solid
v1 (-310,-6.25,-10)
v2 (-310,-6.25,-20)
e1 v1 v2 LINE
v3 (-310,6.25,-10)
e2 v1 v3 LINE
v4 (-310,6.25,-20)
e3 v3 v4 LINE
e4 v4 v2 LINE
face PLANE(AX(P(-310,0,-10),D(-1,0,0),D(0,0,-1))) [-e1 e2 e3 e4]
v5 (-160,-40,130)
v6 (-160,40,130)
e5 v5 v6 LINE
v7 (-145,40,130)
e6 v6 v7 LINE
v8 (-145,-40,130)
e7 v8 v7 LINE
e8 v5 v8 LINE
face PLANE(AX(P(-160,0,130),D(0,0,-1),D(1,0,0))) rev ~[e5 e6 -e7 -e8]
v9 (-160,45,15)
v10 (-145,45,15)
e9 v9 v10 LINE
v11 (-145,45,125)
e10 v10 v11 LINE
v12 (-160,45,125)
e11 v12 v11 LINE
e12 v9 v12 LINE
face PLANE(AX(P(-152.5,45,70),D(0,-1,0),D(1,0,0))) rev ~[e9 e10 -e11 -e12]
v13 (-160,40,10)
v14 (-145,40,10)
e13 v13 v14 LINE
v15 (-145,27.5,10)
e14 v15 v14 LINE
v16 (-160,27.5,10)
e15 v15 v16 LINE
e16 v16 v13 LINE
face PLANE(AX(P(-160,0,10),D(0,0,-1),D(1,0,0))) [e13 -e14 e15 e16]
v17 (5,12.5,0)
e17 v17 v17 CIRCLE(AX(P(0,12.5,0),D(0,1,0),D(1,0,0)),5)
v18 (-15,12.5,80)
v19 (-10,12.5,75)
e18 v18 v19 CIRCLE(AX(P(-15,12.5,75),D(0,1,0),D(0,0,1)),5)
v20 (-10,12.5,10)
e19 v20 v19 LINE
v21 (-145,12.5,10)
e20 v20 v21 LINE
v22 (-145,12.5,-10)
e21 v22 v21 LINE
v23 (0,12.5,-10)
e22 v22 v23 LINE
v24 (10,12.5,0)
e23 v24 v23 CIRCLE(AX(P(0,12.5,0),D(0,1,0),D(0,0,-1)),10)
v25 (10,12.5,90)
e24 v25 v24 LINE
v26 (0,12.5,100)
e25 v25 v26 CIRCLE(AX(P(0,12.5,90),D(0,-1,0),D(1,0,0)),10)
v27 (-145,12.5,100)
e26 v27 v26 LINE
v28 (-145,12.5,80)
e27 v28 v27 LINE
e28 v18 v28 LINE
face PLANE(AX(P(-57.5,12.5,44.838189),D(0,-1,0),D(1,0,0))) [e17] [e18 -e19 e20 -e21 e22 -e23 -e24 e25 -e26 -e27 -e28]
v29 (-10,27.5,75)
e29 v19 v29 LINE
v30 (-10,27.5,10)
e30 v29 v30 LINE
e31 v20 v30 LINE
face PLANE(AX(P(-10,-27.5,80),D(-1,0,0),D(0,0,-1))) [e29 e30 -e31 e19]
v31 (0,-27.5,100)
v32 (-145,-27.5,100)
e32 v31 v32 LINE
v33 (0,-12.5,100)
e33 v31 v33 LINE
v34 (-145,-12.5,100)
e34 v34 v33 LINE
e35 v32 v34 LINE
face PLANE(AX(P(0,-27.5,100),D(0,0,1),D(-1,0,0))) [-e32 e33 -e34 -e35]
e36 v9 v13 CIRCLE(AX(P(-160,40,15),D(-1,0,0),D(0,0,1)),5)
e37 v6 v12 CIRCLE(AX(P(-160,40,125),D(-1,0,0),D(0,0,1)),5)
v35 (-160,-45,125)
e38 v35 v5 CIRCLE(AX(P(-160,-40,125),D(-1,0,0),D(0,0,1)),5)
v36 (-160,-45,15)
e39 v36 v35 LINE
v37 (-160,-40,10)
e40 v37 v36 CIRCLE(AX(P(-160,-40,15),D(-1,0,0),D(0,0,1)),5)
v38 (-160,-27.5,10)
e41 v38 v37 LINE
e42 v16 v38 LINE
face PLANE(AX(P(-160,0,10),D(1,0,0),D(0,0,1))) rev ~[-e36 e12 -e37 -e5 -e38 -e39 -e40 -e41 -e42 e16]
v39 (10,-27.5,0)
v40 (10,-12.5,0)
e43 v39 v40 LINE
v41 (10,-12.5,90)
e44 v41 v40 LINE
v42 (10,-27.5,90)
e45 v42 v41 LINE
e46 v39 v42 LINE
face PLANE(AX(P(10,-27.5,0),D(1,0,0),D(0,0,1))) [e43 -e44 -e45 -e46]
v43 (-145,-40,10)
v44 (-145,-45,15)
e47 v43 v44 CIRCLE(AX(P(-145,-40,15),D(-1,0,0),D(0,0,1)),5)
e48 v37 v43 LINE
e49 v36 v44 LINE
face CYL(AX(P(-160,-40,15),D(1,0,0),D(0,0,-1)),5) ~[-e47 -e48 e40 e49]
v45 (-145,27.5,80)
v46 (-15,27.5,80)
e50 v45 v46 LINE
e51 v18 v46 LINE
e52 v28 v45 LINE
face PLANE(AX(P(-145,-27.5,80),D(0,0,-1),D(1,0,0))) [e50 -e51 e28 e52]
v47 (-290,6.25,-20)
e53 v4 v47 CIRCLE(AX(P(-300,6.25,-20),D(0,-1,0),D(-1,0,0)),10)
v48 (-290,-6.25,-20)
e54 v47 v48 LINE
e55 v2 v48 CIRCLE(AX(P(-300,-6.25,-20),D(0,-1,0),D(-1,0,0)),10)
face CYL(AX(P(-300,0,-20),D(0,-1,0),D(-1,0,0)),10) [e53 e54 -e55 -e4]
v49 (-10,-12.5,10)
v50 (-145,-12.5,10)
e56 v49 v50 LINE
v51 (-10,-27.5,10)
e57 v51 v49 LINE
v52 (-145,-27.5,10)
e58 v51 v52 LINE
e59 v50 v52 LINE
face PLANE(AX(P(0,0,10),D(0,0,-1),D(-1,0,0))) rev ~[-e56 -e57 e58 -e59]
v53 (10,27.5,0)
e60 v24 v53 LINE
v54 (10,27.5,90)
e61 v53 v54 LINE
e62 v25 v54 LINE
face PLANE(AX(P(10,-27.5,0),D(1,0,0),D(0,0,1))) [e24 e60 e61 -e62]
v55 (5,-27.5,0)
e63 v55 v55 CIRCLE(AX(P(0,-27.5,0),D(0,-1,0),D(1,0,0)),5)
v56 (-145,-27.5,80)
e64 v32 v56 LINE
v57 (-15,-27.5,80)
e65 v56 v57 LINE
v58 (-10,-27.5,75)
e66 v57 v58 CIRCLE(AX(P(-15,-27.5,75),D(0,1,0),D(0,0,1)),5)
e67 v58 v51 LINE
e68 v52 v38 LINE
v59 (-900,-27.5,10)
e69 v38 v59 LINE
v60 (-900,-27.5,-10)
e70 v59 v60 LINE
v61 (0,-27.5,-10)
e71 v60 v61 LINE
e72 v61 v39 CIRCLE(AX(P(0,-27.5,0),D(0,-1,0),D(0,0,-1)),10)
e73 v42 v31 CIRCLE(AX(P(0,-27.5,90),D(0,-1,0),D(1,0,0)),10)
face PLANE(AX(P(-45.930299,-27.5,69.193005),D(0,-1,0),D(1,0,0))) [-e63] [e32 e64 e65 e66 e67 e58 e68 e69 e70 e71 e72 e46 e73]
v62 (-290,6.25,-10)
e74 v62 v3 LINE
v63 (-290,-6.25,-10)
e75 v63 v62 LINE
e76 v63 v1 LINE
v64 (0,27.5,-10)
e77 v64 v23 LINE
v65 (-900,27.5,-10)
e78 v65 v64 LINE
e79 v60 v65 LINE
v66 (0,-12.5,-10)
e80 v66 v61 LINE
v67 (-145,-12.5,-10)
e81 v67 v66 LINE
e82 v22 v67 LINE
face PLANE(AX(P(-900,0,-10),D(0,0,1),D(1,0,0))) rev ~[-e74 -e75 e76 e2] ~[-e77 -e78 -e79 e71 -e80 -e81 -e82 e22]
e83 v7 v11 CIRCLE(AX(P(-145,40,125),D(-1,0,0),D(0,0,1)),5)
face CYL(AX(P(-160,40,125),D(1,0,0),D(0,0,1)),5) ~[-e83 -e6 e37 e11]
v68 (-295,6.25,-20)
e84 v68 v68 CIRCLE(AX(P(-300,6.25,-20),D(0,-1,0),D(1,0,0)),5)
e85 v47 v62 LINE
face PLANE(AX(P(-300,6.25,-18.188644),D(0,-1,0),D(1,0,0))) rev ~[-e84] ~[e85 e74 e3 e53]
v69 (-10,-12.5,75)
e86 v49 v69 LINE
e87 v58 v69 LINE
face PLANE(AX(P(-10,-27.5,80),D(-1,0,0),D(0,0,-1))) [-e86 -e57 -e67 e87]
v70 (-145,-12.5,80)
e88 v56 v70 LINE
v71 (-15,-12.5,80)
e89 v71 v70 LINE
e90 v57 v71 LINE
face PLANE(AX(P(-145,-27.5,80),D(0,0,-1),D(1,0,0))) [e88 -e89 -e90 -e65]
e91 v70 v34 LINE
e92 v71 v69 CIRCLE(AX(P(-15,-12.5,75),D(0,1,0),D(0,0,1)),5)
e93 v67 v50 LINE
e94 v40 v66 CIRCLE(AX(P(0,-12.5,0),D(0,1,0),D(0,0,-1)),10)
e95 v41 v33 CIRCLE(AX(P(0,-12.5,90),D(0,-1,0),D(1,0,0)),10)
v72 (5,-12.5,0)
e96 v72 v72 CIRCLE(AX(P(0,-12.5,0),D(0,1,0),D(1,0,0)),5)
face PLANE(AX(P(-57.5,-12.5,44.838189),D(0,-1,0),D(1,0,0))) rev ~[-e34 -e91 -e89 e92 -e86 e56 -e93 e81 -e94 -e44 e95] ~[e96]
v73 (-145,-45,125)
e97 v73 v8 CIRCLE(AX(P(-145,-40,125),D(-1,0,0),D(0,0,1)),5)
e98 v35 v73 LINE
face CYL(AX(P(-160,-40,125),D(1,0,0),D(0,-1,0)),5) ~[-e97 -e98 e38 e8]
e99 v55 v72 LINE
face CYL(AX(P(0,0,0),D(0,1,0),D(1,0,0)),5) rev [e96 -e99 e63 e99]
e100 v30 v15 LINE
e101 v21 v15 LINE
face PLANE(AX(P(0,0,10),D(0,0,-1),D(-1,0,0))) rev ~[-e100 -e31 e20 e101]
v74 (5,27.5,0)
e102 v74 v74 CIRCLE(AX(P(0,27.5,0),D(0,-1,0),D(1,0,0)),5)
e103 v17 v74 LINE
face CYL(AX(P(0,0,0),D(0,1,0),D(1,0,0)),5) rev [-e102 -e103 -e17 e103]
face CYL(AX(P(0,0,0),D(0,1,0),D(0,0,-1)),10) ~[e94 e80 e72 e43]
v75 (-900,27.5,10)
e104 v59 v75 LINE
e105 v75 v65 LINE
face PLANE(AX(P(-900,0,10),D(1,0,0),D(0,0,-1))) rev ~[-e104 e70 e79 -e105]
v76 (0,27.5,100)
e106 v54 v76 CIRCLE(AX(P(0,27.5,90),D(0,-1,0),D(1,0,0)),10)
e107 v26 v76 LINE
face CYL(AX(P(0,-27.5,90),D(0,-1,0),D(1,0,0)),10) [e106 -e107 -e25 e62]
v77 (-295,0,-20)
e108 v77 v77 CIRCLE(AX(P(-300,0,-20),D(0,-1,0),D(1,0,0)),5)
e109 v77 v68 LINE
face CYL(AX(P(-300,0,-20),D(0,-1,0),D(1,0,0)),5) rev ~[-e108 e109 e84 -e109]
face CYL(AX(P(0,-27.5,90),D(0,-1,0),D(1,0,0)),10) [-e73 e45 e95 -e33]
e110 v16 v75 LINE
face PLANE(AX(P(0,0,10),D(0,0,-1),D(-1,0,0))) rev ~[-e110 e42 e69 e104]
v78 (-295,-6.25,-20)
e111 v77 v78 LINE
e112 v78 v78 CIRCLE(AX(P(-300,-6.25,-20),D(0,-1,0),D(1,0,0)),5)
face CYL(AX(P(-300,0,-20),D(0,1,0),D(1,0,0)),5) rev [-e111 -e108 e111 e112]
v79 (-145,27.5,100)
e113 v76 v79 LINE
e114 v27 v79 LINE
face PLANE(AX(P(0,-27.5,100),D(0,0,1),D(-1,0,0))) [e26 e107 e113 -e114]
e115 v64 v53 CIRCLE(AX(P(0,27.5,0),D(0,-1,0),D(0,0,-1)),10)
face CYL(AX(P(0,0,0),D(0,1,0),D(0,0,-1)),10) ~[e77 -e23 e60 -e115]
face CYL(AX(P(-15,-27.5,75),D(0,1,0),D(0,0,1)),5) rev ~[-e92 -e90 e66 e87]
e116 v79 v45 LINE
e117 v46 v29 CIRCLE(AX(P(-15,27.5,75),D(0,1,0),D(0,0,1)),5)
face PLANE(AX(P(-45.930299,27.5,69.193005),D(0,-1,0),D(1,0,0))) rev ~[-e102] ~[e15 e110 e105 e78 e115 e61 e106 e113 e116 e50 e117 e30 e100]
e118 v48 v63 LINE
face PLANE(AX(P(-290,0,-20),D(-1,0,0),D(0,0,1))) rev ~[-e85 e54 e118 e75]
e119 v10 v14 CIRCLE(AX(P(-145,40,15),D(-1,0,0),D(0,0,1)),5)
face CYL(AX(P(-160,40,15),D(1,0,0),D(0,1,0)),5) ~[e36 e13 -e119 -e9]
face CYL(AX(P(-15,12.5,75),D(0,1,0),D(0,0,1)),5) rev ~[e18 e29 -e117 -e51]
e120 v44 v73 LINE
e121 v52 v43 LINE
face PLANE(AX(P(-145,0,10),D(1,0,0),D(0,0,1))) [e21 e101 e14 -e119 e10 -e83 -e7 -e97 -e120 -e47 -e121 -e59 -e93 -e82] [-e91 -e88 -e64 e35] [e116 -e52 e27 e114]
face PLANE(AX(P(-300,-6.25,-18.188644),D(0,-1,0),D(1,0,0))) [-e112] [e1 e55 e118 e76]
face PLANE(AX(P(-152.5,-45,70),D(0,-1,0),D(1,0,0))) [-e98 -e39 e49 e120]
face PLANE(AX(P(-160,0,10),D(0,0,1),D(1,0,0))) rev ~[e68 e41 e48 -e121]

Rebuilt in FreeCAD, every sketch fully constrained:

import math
import FreeCAD as App
import Part
import Sketcher
from FreeCAD import Vector
Q = App.Units.Quantity


def edges_at(feature, points):
    """Names of the edges that pass closest to the given points."""
    edges = feature.Shape.Edges
    near = lambda p: min(range(len(edges)), key=lambda i: edges[i].distToShape(Part.Vertex(*p))[0])
    return sorted({f"Edge{near(p) + 1}" for p in points})

doc = App.newDocument("Part")
body = doc.addObject("PartDesign::Body", "Body")

sketch1 = body.newObject("Sketcher::SketchObject", "Sketch")
sketch1.AttachmentSupport = (doc.getObject("XZ_Plane"), [""])
sketch1.MapMode = "FlatFace"
sketch1.addGeometry(Part.LineSegment(Vector(-900, -10, 0), Vector(0, -10, 0)), False)
sketch1.addGeometry(Part.ArcOfCircle(Part.Circle(Vector(0, 0, 0), Vector(0, 0, 1), 10), math.radians(-90), math.radians(90)), False)
sketch1.addGeometry(Part.LineSegment(Vector(0, 10, 0), Vector(-900, 10, 0)), False)
sketch1.addGeometry(Part.LineSegment(Vector(-900, 10, 0), Vector(-900, -10, 0)), False)
sketch1.addGeometry(Part.Circle(Vector(0, 0, 0), Vector(0, 0, 1), 5), False)
sketch1.addConstraint(Sketcher.Constraint("Tangent", 0, 2, 1, 1))
sketch1.addConstraint(Sketcher.Constraint("Tangent", 1, 2, 2, 1))
sketch1.addConstraint(Sketcher.Constraint("Coincident", 2, 2, 3, 1))
sketch1.addConstraint(Sketcher.Constraint("Coincident", 3, 2, 0, 1))
sketch1.addConstraint(Sketcher.Constraint("Horizontal", 0))
sketch1.addConstraint(Sketcher.Constraint("Horizontal", 2))
sketch1.addConstraint(Sketcher.Constraint("Vertical", 3))
sketch1.addConstraint(Sketcher.Constraint("Coincident", 1, 3, -1, 1))
sketch1.addConstraint(Sketcher.Constraint("Coincident", 4, 3, -1, 1))
sketch1.addConstraint(Sketcher.Constraint("Diameter", 4, Q("10 mm")))
sketch1.addConstraint(Sketcher.Constraint("Radius", 1, Q("10 mm")))
sketch1.addConstraint(Sketcher.Constraint("DistanceX", 0, 1, 0, 2, Q("900 mm")))
pad1 = body.newObject("PartDesign::Pad", "Pad")
pad1.Profile = sketch1
pad1.Type = "TwoLengths"
pad1.Length = 27.5
pad1.Length2 = 27.5
pad1.Reversed = True

sketch2 = body.newObject("Sketcher::SketchObject", "Sketch001")
sketch2.AttachmentSupport = (doc.getObject("XZ_Plane"), [""])
sketch2.MapMode = "FlatFace"
sketch2.AttachmentOffset = App.Placement(Vector(0, 0, 27.5), App.Rotation())
sketch2.addGeometry(Part.LineSegment(Vector(-10, 80, 0), Vector(-10, 0, 0)), False)
sketch2.addGeometry(Part.ArcOfCircle(Part.Circle(Vector(0, 0, 0), Vector(0, 0, 1), 10), math.radians(180), math.radians(360)), False)
sketch2.addGeometry(Part.LineSegment(Vector(10, 0, 0), Vector(10, 90, 0)), False)
sketch2.addGeometry(Part.ArcOfCircle(Part.Circle(Vector(0, 90, 0), Vector(0, 0, 1), 10), math.radians(0), math.radians(90)), False)
sketch2.addGeometry(Part.LineSegment(Vector(0, 100, 0), Vector(-145, 100, 0)), False)
sketch2.addGeometry(Part.LineSegment(Vector(-145, 100, 0), Vector(-145, 80, 0)), False)
sketch2.addGeometry(Part.LineSegment(Vector(-145, 80, 0), Vector(-10, 80, 0)), False)
sketch2.addGeometry(Part.Circle(Vector(0, 0, 0), Vector(0, 0, 1), 5), False)
sketch2.addConstraint(Sketcher.Constraint("Tangent", 0, 2, 1, 1))
sketch2.addConstraint(Sketcher.Constraint("Tangent", 1, 2, 2, 1))
sketch2.addConstraint(Sketcher.Constraint("Tangent", 2, 2, 3, 1))
sketch2.addConstraint(Sketcher.Constraint("Tangent", 3, 2, 4, 1))
sketch2.addConstraint(Sketcher.Constraint("Coincident", 4, 2, 5, 1))
sketch2.addConstraint(Sketcher.Constraint("Coincident", 5, 2, 6, 1))
sketch2.addConstraint(Sketcher.Constraint("Coincident", 6, 2, 0, 1))
sketch2.addConstraint(Sketcher.Constraint("Vertical", 0))
sketch2.addConstraint(Sketcher.Constraint("Vertical", 2))
sketch2.addConstraint(Sketcher.Constraint("Horizontal", 4))
sketch2.addConstraint(Sketcher.Constraint("Vertical", 5))
sketch2.addConstraint(Sketcher.Constraint("Horizontal", 6))
sketch2.addConstraint(Sketcher.Constraint("Coincident", 1, 3, -1, 1))
sketch2.addConstraint(Sketcher.Constraint("Coincident", 7, 3, -1, 1))
sketch2.addConstraint(Sketcher.Constraint("Equal", 1, 3))
sketch2.addConstraint(Sketcher.Constraint("Diameter", 7, Q("10 mm")))
sketch2.addConstraint(Sketcher.Constraint("Radius", 1, Q("10 mm")))
sketch2.addConstraint(Sketcher.Constraint("DistanceX", 4, 2, 4, 1, Q("145 mm")))
sketch2.addConstraint(Sketcher.Constraint("DistanceY", 0, 2, 0, 1, Q("80 mm")))
sketch2.addConstraint(Sketcher.Constraint("DistanceY", 2, 1, 2, 2, Q("90 mm")))
pad2 = body.newObject("PartDesign::Pad", "Pad001")
pad2.Profile = sketch2
pad2.Length = 55
pad2.Reversed = True

sketch3 = body.newObject("Sketcher::SketchObject", "Sketch002")
sketch3.AttachmentSupport = (doc.getObject("XZ_Plane"), [""])
sketch3.MapMode = "FlatFace"
sketch3.addGeometry(Part.LineSegment(Vector(-145, 108, 0), Vector(-145, -18, 0)), False)
sketch3.addGeometry(Part.LineSegment(Vector(-145, -18, 0), Vector(30, -18, 0)), False)
sketch3.addGeometry(Part.LineSegment(Vector(30, -18, 0), Vector(30, 108, 0)), False)
sketch3.addGeometry(Part.LineSegment(Vector(30, 108, 0), Vector(-145, 108, 0)), False)
sketch3.addConstraint(Sketcher.Constraint("Coincident", 0, 2, 1, 1))
sketch3.addConstraint(Sketcher.Constraint("Coincident", 1, 2, 2, 1))
sketch3.addConstraint(Sketcher.Constraint("Coincident", 2, 2, 3, 1))
sketch3.addConstraint(Sketcher.Constraint("Coincident", 3, 2, 0, 1))
sketch3.addConstraint(Sketcher.Constraint("Vertical", 0))
sketch3.addConstraint(Sketcher.Constraint("Horizontal", 1))
sketch3.addConstraint(Sketcher.Constraint("Vertical", 2))
sketch3.addConstraint(Sketcher.Constraint("Horizontal", 3))
sketch3.addConstraint(Sketcher.Constraint("DistanceX", 1, 1, 1, 2, Q("175 mm")))
sketch3.addConstraint(Sketcher.Constraint("DistanceX", 0, 2, -1, 1, Q("145 mm")))
sketch3.addConstraint(Sketcher.Constraint("DistanceY", 0, 2, 0, 1, Q("126.155792 mm")))
sketch3.addConstraint(Sketcher.Constraint("DistanceY", 0, 2, -1, 1, Q("18.239707 mm")))
pocket1 = body.newObject("PartDesign::Pocket", "Pocket")
pocket1.Profile = sketch3
pocket1.Type = "TwoLengths"
pocket1.Length = 12.5
pocket1.Length2 = 12.5

sketch4 = body.newObject("Sketcher::SketchObject", "Sketch003")
sketch4.AttachmentSupport = (doc.getObject("XZ_Plane"), [""])
sketch4.MapMode = "FlatFace"
sketch4.addGeometry(Part.LineSegment(Vector(-310, -10, 0), Vector(-310, -20, 0)), False)
sketch4.addGeometry(Part.ArcOfCircle(Part.Circle(Vector(-300, -20, 0), Vector(0, 0, 1), 10), math.radians(180), math.radians(360)), False)
sketch4.addGeometry(Part.LineSegment(Vector(-290, -20, 0), Vector(-290, -10, 0)), False)
sketch4.addGeometry(Part.LineSegment(Vector(-290, -10, 0), Vector(-310, -10, 0)), False)
sketch4.addGeometry(Part.Circle(Vector(-300, -20, 0), Vector(0, 0, 1), 5), False)
sketch4.addConstraint(Sketcher.Constraint("Tangent", 0, 2, 1, 1))
sketch4.addConstraint(Sketcher.Constraint("Tangent", 1, 2, 2, 1))
sketch4.addConstraint(Sketcher.Constraint("Coincident", 2, 2, 3, 1))
sketch4.addConstraint(Sketcher.Constraint("Coincident", 3, 2, 0, 1))
sketch4.addConstraint(Sketcher.Constraint("Vertical", 0))
sketch4.addConstraint(Sketcher.Constraint("Vertical", 2))
sketch4.addConstraint(Sketcher.Constraint("Horizontal", 3))
sketch4.addConstraint(Sketcher.Constraint("Coincident", 4, 3, 1, 3))
sketch4.addConstraint(Sketcher.Constraint("Diameter", 4, Q("10 mm")))
sketch4.addConstraint(Sketcher.Constraint("Radius", 1, Q("10 mm")))
sketch4.addConstraint(Sketcher.Constraint("DistanceY", 0, 2, 0, 1, Q("10 mm")))
sketch4.addConstraint(Sketcher.Constraint("DistanceX", 1, 3, -1, 1, Q("300 mm")))
sketch4.addConstraint(Sketcher.Constraint("DistanceY", 1, 3, -1, 1, Q("20 mm")))
pad3 = body.newObject("PartDesign::Pad", "Pad002")
pad3.Profile = sketch4
pad3.Type = "TwoLengths"
pad3.Length = 6.25
pad3.Length2 = 6.25

sketch5 = body.newObject("Sketcher::SketchObject", "Sketch004")
sketch5.AttachmentSupport = (doc.getObject("XZ_Plane"), [""])
sketch5.MapMode = "FlatFace"
sketch5.addGeometry(Part.LineSegment(Vector(-160, 130, 0), Vector(-160, 10, 0)), False)
sketch5.addGeometry(Part.LineSegment(Vector(-160, 10, 0), Vector(-145, 10, 0)), False)
sketch5.addGeometry(Part.LineSegment(Vector(-145, 10, 0), Vector(-145, 130, 0)), False)
sketch5.addGeometry(Part.LineSegment(Vector(-145, 130, 0), Vector(-160, 130, 0)), False)
sketch5.addConstraint(Sketcher.Constraint("Coincident", 0, 2, 1, 1))
sketch5.addConstraint(Sketcher.Constraint("Coincident", 1, 2, 2, 1))
sketch5.addConstraint(Sketcher.Constraint("Coincident", 2, 2, 3, 1))
sketch5.addConstraint(Sketcher.Constraint("Coincident", 3, 2, 0, 1))
sketch5.addConstraint(Sketcher.Constraint("Vertical", 0))
sketch5.addConstraint(Sketcher.Constraint("Horizontal", 1))
sketch5.addConstraint(Sketcher.Constraint("Vertical", 2))
sketch5.addConstraint(Sketcher.Constraint("Horizontal", 3))
sketch5.addConstraint(Sketcher.Constraint("DistanceX", 1, 1, 1, 2, Q("15 mm")))
sketch5.addConstraint(Sketcher.Constraint("DistanceY", 0, 2, 0, 1, Q("120 mm")))
sketch5.addConstraint(Sketcher.Constraint("DistanceX", 0, 2, -1, 1, Q("160 mm")))
sketch5.addConstraint(Sketcher.Constraint("DistanceY", -1, 1, 0, 2, Q("10 mm")))
pad4 = body.newObject("PartDesign::Pad", "Pad003")
pad4.Profile = sketch5
pad4.Type = "TwoLengths"
pad4.Length = 45
pad4.Length2 = 45
doc.recompute()

fillet = body.newObject("PartDesign::Fillet", "Fillet")
fillet.Base = (pad4, edges_at(pad4, [
    (-152.5, -45, 130),
    (-152.5, 45, 130),
    (-152.5, -45, 10),
    (-152.5, 45, 10),
]))
fillet.Radius = 5
doc.recompute()

fillet2 = body.newObject("PartDesign::Fillet", "Fillet001")
fillet2.Base = (fillet, edges_at(fillet, [(-10, -20, 80), (-10, 20, 80)]))
fillet2.Radius = 5

doc.recompute()
